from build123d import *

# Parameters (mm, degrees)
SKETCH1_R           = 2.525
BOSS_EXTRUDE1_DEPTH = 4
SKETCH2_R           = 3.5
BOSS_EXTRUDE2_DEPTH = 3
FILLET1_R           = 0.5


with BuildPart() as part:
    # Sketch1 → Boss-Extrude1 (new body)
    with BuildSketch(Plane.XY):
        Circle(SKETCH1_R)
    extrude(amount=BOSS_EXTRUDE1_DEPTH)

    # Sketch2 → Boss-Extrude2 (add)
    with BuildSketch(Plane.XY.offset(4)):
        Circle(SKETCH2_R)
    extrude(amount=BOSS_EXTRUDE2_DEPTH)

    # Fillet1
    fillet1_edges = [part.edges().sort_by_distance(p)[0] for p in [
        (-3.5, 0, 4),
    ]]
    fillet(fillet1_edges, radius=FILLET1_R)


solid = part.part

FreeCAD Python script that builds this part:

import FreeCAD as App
import Part
import Sketcher

V = App.Vector
Q = App.Units.Quantity


def edges_at(feature, points):
    """Names of the edges that pass closest to the given points."""
    edges = feature.Shape.Edges
    near = lambda p: min(range(len(edges)), key=lambda i: edges[i].distToShape(Part.Vertex(*p))[0])
    return sorted({f"Edge{near(p) + 1}" for p in points})

doc = App.newDocument("Part")
params = doc.addObject("Spreadsheet::Sheet", "Params")
for row, (alias, value) in enumerate([
    ("sketch1_diameter", "5.05 mm"),
    ("pad1_length", "4 mm"),
    ("sketch2_diameter", "7 mm"),
    ("pad2_length", "3 mm"),
    ("fillet_radius", "0.5 mm"),
], start=1):
    params.set(f"A{row}", alias)
    params.set(f"B{row}", "=" + value)
    params.setAlias(f"B{row}", alias)

body = doc.addObject("PartDesign::Body", "Body")

# Sketch on XY plane
sketch1 = body.newObject("Sketcher::SketchObject", "Sketch")
sketch1.AttachmentSupport = (doc.getObject("XY_Plane"), [""])
sketch1.MapMode = "FlatFace"
sketch1.addGeometry(Part.Circle(V(0, 0, 0), V(0, 0, 1), 2.5), False)
sketch1.addConstraint([
    Sketcher.Constraint("Coincident", 0, 3, -1, 1),
    Sketcher.Constraint("Diameter", 0, Q("5.05 mm")),
])
sketch1.setExpression("Constraints[1]", "Params.sketch1_diameter")
pad1 = body.newObject("PartDesign::Pad", "Pad")
pad1.Profile = sketch1
pad1.setExpression("Length", "Params.pad1_length")

# Sketch on XY plane
sketch2 = body.newObject("Sketcher::SketchObject", "Sketch001")
sketch2.AttachmentSupport = (doc.getObject("XY_Plane"), [""])
sketch2.MapMode = "FlatFace"
sketch2.AttachmentOffset = App.Placement(V(0, 0, 4), App.Rotation())
sketch2.addGeometry(Part.Circle(V(0, 0, 0), V(0, 0, 1), 3.5), False)
sketch2.addConstraint([
    Sketcher.Constraint("Coincident", 0, 3, -1, 1),
    Sketcher.Constraint("Diameter", 0, Q("7 mm")),
])
sketch2.setExpression("Constraints[1]", "Params.sketch2_diameter")
pad2 = body.newObject("PartDesign::Pad", "Pad001")
pad2.Profile = sketch2
pad2.setExpression("Length", "Params.pad2_length")
doc.recompute()

fillet = body.newObject("PartDesign::Fillet", "Fillet")
fillet.Base = (pad2, edges_at(pad2, [(-3.5, 0, 4)]))
fillet.setExpression("Radius", "Params.fillet_radius")

doc.recompute()
